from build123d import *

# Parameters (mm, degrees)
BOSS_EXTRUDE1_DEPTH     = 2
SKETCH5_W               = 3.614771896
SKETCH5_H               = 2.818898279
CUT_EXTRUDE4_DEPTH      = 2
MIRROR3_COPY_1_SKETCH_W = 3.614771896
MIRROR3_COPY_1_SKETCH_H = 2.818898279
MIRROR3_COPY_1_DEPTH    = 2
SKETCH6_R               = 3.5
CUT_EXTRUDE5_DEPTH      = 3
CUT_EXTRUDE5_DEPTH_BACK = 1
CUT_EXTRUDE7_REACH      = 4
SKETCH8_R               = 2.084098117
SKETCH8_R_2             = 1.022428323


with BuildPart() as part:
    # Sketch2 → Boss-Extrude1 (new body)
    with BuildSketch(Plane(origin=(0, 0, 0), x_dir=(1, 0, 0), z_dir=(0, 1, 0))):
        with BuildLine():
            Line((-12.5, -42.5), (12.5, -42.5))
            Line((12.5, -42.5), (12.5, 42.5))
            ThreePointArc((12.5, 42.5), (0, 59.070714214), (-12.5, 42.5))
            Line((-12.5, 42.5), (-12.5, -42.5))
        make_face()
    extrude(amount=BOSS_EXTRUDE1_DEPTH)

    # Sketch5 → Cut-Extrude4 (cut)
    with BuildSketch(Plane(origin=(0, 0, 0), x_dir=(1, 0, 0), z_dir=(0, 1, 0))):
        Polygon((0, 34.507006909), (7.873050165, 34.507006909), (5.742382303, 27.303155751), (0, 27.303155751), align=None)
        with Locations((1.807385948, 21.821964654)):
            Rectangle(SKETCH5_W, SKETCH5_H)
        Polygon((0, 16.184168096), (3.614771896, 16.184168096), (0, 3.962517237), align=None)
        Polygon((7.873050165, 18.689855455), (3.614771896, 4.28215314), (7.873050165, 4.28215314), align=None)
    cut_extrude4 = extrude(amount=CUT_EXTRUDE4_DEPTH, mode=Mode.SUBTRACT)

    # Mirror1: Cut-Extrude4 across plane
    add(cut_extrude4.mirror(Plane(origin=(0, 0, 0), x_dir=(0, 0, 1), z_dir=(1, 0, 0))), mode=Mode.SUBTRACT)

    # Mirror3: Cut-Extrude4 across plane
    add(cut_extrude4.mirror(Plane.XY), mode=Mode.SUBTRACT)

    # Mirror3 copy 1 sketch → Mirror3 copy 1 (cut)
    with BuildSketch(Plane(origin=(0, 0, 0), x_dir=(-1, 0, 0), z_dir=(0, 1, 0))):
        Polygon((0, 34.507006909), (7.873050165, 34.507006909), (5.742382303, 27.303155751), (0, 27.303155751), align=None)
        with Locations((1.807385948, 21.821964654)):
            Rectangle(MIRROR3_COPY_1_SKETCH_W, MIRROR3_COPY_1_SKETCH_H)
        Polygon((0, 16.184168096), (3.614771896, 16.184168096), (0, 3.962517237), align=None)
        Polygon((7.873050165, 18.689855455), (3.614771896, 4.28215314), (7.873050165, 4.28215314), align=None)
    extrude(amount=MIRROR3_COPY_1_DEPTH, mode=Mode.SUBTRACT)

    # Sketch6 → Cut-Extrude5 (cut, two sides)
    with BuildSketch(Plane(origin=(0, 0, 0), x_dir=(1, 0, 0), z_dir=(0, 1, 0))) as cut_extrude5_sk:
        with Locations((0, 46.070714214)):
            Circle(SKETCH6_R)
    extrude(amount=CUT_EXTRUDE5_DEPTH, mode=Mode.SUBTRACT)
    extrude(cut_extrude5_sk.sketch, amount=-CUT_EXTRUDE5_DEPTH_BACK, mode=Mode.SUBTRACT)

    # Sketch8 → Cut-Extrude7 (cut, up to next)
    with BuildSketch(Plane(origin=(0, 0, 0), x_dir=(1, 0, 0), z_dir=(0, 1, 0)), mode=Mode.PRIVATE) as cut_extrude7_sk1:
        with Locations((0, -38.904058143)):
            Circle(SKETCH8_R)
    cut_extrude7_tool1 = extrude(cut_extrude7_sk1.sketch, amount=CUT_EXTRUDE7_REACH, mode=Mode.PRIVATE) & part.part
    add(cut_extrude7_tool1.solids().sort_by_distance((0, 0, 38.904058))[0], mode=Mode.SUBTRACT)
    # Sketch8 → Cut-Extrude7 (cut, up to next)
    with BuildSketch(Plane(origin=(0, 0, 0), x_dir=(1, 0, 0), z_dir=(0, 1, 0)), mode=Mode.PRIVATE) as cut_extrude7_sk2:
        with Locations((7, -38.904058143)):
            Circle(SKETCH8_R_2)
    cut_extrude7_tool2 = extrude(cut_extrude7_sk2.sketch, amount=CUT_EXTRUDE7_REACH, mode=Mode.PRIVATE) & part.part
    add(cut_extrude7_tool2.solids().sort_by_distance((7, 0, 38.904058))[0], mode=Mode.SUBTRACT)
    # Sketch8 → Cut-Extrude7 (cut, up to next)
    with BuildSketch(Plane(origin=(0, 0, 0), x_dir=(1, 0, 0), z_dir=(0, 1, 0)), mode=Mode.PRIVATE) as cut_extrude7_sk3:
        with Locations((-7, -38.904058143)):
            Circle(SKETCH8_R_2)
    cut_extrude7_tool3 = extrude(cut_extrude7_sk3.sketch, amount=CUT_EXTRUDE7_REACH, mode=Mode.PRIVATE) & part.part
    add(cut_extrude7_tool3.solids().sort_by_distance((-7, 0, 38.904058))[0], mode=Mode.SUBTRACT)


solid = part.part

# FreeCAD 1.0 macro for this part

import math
import FreeCAD as App
import Part
import Sketcher

doc = App.newDocument("Part")
body = doc.addObject("PartDesign::Body", "Body")

# Sketch on XZ plane
sketch1 = body.newObject("Sketcher::SketchObject", "Sketch")
sketch1.AttachmentSupport = (doc.getObject("XZ_Plane"), [""])
sketch1.MapMode = "FlatFace"
sketch1.addGeometry(Part.LineSegment(App.Vector(-12, 42, 0), App.Vector(12, 42, 0)), False)
sketch1.addGeometry(Part.LineSegment(App.Vector(12, 42, 0), App.Vector(12, -42, 0)), False)
sketch1.addGeometry(Part.ArcOfCircle(Part.Circle(App.Vector(0, -46, 0), App.Vector(0, 0, 1), 13), math.radians(164), math.radians(376)), False)
sketch1.addGeometry(Part.LineSegment(App.Vector(-12, -42, 0), App.Vector(-12, 42, 0)), False)
sketch1.addConstraint(Sketcher.Constraint("Coincident", 0, 2, 1, 1))
sketch1.addConstraint(Sketcher.Constraint("Coincident", 1, 2, 2, 2))
sketch1.addConstraint(Sketcher.Constraint("Coincident", 2, 1, 3, 1))
sketch1.addConstraint(Sketcher.Constraint("Coincident", 3, 2, 0, 1))
sketch1.addConstraint(Sketcher.Constraint("Horizontal", 0))
sketch1.addConstraint(Sketcher.Constraint("Vertical", 1))
sketch1.addConstraint(Sketcher.Constraint("Vertical", 3))
sketch1.addConstraint(Sketcher.Constraint("Symmetric", 0, 2, 2, 1, -1, 1))
sketch1.addConstraint(Sketcher.Constraint("PointOnObject", 2, 3, -2))
sketch1.addConstraint(Sketcher.Constraint("Radius", 2, 13.0))
sketch1.addConstraint(Sketcher.Constraint("DistanceX", 0, 1, 0, 2, 25.0))
sketch1.addConstraint(Sketcher.Constraint("DistanceY", 1, 2, 1, 1, 85.0))
pad1 = body.newObject("PartDesign::Pad", "Pad")
pad1.Profile = sketch1
pad1.Length = 2
pad1.Reversed = True

# Sketch on XZ plane
sketch2 = body.newObject("Sketcher::SketchObject", "Sketch001")
sketch2.AttachmentSupport = (doc.getObject("XZ_Plane"), [""])
sketch2.MapMode = "FlatFace"
sketch2.addGeometry(Part.LineSegment(App.Vector(7.9, -34.5, 0), App.Vector(0, -34.5, 0)), False)
sketch2.addGeometry(Part.LineSegment(App.Vector(0, -34.5, 0), App.Vector(0, -27.3, 0)), False)
sketch2.addGeometry(Part.LineSegment(App.Vector(0, -27.3, 0), App.Vector(5.7, -27.3, 0)), False)
sketch2.addGeometry(Part.LineSegment(App.Vector(5.7, -27.3, 0), App.Vector(7.9, -34.5, 0)), False)
sketch2.addGeometry(Part.LineSegment(App.Vector(0, -23.2, 0), App.Vector(0, -20.4, 0)), False)
sketch2.addGeometry(Part.LineSegment(App.Vector(0, -20.4, 0), App.Vector(3.6, -20.4, 0)), False)
sketch2.addGeometry(Part.LineSegment(App.Vector(3.6, -20.4, 0), App.Vector(3.6, -23.2, 0)), False)
sketch2.addGeometry(Part.LineSegment(App.Vector(3.6, -23.2, 0), App.Vector(0, -23.2, 0)), False)
sketch2.addGeometry(Part.LineSegment(App.Vector(3.6, -16.2, 0), App.Vector(0, -16.2, 0)), False)
sketch2.addGeometry(Part.LineSegment(App.Vector(0, -16.2, 0), App.Vector(0, -4, 0)), False)
sketch2.addGeometry(Part.LineSegment(App.Vector(0, -4, 0), App.Vector(3.6, -16.2, 0)), False)
sketch2.addGeometry(Part.LineSegment(App.Vector(7.9, -18.7, 0), App.Vector(3.6, -4.3, 0)), False)
sketch2.addGeometry(Part.LineSegment(App.Vector(3.6, -4.3, 0), App.Vector(7.9, -4.3, 0)), False)
sketch2.addGeometry(Part.LineSegment(App.Vector(7.9, -4.3, 0), App.Vector(7.9, -18.7, 0)), False)
sketch2.addConstraint(Sketcher.Constraint("Coincident", 0, 2, 1, 1))
sketch2.addConstraint(Sketcher.Constraint("Coincident", 1, 2, 2, 1))
sketch2.addConstraint(Sketcher.Constraint("Coincident", 2, 2, 3, 1))
sketch2.addConstraint(Sketcher.Constraint("Coincident", 3, 2, 0, 1))
sketch2.addConstraint(Sketcher.Constraint("Coincident", 4, 2, 5, 1))
sketch2.addConstraint(Sketcher.Constraint("Coincident", 5, 2, 6, 1))
sketch2.addConstraint(Sketcher.Constraint("Coincident", 6, 2, 7, 1))
sketch2.addConstraint(Sketcher.Constraint("Coincident", 7, 2, 4, 1))
sketch2.addConstraint(Sketcher.Constraint("Coincident", 8, 2, 9, 1))
sketch2.addConstraint(Sketcher.Constraint("Coincident", 9, 2, 10, 1))
sketch2.addConstraint(Sketcher.Constraint("Coincident", 10, 2, 8, 1))
sketch2.addConstraint(Sketcher.Constraint("Coincident", 11, 2, 12, 1))
sketch2.addConstraint(Sketcher.Constraint("Coincident", 12, 2, 13, 1))
sketch2.addConstraint(Sketcher.Constraint("Coincident", 13, 2, 11, 1))
sketch2.addConstraint(Sketcher.Constraint("Horizontal", 0))
sketch2.addConstraint(Sketcher.Constraint("Vertical", 1))
sketch2.addConstraint(Sketcher.Constraint("Horizontal", 2))
sketch2.addConstraint(Sketcher.Constraint("Vertical", 4))
sketch2.addConstraint(Sketcher.Constraint("Horizontal", 5))
sketch2.addConstraint(Sketcher.Constraint("Vertical", 6))
sketch2.addConstraint(Sketcher.Constraint("Horizontal", 7))
sketch2.addConstraint(Sketcher.Constraint("Horizontal", 8))
sketch2.addConstraint(Sketcher.Constraint("Vertical", 9))
sketch2.addConstraint(Sketcher.Constraint("Horizontal", 12))
sketch2.addConstraint(Sketcher.Constraint("Vertical", 13))
sketch2.addConstraint(Sketcher.Constraint("PointOnObject", 0, 2, -2))
sketch2.addConstraint(Sketcher.Constraint("PointOnObject", 4, 2, -2))
sketch2.addConstraint(Sketcher.Constraint("PointOnObject", 8, 2, -2))
sketch2.addConstraint(Sketcher.Constraint("Parallel", 3, 10))
sketch2.addConstraint(Sketcher.Constraint("Vertical", 6, 2, 10, 2))
sketch2.addConstraint(Sketcher.Constraint("Vertical", 10, 2, 11, 2))
sketch2.addConstraint(Sketcher.Constraint("Vertical", 3, 2, 12, 2))
sketch2.addConstraint(Sketcher.Constraint("DistanceY", 4, 2, 9, 2, 16.449998))
sketch2.addConstraint(Sketcher.Constraint("DistanceY", 4, 1, 4, 2, 2.818898))
sketch2.addConstraint(Sketcher.Constraint("DistanceX", 0, 2, 0, 1, 7.87305))
sketch2.addConstraint(Sketcher.Constraint("DistanceX", 5, 1, 5, 2, 3.614772))
sketch2.addConstraint(Sketcher.Constraint("DistanceY", 1, 1, 1, 2, 7.203851))
sketch2.addConstraint(Sketcher.Constraint("DistanceY", 9, 1, 9, 2, 12.221651))
sketch2.addConstraint(Sketcher.Constraint("Distance", 11, 15.023808))
sketch2.addConstraint(Sketcher.Constraint("DistanceY", 8, 2, -1, 1, 16.184168))
sketch2.addConstraint(Sketcher.Constraint("DistanceY", 1, 2, 4, 2, 6.89064))
sketch2.addConstraint(Sketcher.Constraint("DistanceY", 5, 2, 13, 2, 1.72266))
pocket1 = body.newObject("PartDesign::Pocket", "Pocket")
pocket1.Profile = sketch2
pocket1.Length = 2
doc.recompute()

mirrored = body.newObject("PartDesign::Mirrored", "Mirrored")
mirrored.Originals = [pocket1]
mirrored.MirrorPlane = (doc.getObject("YZ_Plane"), [""])
body.Tip = mirrored
doc.recompute()

mirrored2 = body.newObject("PartDesign::Mirrored", "Mirrored001")
mirrored2.Originals = [pocket1]
mirrored2.MirrorPlane = (doc.getObject("XY_Plane"), [""])
body.Tip = mirrored2

# Sketch on XZ plane
sketch3 = body.newObject("Sketcher::SketchObject", "Sketch002")
sketch3.AttachmentSupport = (doc.getObject("XZ_Plane"), [""])
sketch3.MapMode = "FlatFace"
sketch3.addGeometry(Part.LineSegment(App.Vector(-7.9, 34.5, 0), App.Vector(0, 34.5, 0)), False)
sketch3.addGeometry(Part.LineSegment(App.Vector(0, 34.5, 0), App.Vector(0, 27.3, 0)), False)
sketch3.addGeometry(Part.LineSegment(App.Vector(0, 27.3, 0), App.Vector(-5.7, 27.3, 0)), False)
sketch3.addGeometry(Part.LineSegment(App.Vector(-5.7, 27.3, 0), App.Vector(-7.9, 34.5, 0)), False)
sketch3.addGeometry(Part.LineSegment(App.Vector(0, 23.2, 0), App.Vector(0, 20.4, 0)), False)
sketch3.addGeometry(Part.LineSegment(App.Vector(0, 20.4, 0), App.Vector(-3.6, 20.4, 0)), False)
sketch3.addGeometry(Part.LineSegment(App.Vector(-3.6, 20.4, 0), App.Vector(-3.6, 23.2, 0)), False)
sketch3.addGeometry(Part.LineSegment(App.Vector(-3.6, 23.2, 0), App.Vector(0, 23.2, 0)), False)
sketch3.addGeometry(Part.LineSegment(App.Vector(-3.6, 16.2, 0), App.Vector(0, 16.2, 0)), False)
sketch3.addGeometry(Part.LineSegment(App.Vector(0, 16.2, 0), App.Vector(0, 4, 0)), False)
sketch3.addGeometry(Part.LineSegment(App.Vector(0, 4, 0), App.Vector(-3.6, 16.2, 0)), False)
sketch3.addGeometry(Part.LineSegment(App.Vector(-7.9, 18.7, 0), App.Vector(-3.6, 4.3, 0)), False)
sketch3.addGeometry(Part.LineSegment(App.Vector(-3.6, 4.3, 0), App.Vector(-7.9, 4.3, 0)), False)
sketch3.addGeometry(Part.LineSegment(App.Vector(-7.9, 4.3, 0), App.Vector(-7.9, 18.7, 0)), False)
sketch3.addConstraint(Sketcher.Constraint("Coincident", 0, 2, 1, 1))
sketch3.addConstraint(Sketcher.Constraint("Coincident", 1, 2, 2, 1))
sketch3.addConstraint(Sketcher.Constraint("Coincident", 2, 2, 3, 1))
sketch3.addConstraint(Sketcher.Constraint("Coincident", 3, 2, 0, 1))
sketch3.addConstraint(Sketcher.Constraint("Coincident", 4, 2, 5, 1))
sketch3.addConstraint(Sketcher.Constraint("Coincident", 5, 2, 6, 1))
sketch3.addConstraint(Sketcher.Constraint("Coincident", 6, 2, 7, 1))
sketch3.addConstraint(Sketcher.Constraint("Coincident", 7, 2, 4, 1))
sketch3.addConstraint(Sketcher.Constraint("Coincident", 8, 2, 9, 1))
sketch3.addConstraint(Sketcher.Constraint("Coincident", 9, 2, 10, 1))
sketch3.addConstraint(Sketcher.Constraint("Coincident", 10, 2, 8, 1))
sketch3.addConstraint(Sketcher.Constraint("Coincident", 11, 2, 12, 1))
sketch3.addConstraint(Sketcher.Constraint("Coincident", 12, 2, 13, 1))
sketch3.addConstraint(Sketcher.Constraint("Coincident", 13, 2, 11, 1))
sketch3.addConstraint(Sketcher.Constraint("Horizontal", 0))
sketch3.addConstraint(Sketcher.Constraint("Vertical", 1))
sketch3.addConstraint(Sketcher.Constraint("Horizontal", 2))
sketch3.addConstraint(Sketcher.Constraint("Vertical", 4))
sketch3.addConstraint(Sketcher.Constraint("Horizontal", 5))
sketch3.addConstraint(Sketcher.Constraint("Vertical", 6))
sketch3.addConstraint(Sketcher.Constraint("Horizontal", 7))
sketch3.addConstraint(Sketcher.Constraint("Horizontal", 8))
sketch3.addConstraint(Sketcher.Constraint("Vertical", 9))
sketch3.addConstraint(Sketcher.Constraint("Horizontal", 12))
sketch3.addConstraint(Sketcher.Constraint("Vertical", 13))
sketch3.addConstraint(Sketcher.Constraint("PointOnObject", 0, 2, -2))
sketch3.addConstraint(Sketcher.Constraint("PointOnObject", 4, 2, -2))
sketch3.addConstraint(Sketcher.Constraint("PointOnObject", 8, 2, -2))
sketch3.addConstraint(Sketcher.Constraint("Parallel", 3, 10))
sketch3.addConstraint(Sketcher.Constraint("Vertical", 6, 2, 10, 2))
sketch3.addConstraint(Sketcher.Constraint("Vertical", 10, 2, 11, 2))
sketch3.addConstraint(Sketcher.Constraint("Vertical", 3, 2, 12, 2))
sketch3.addConstraint(Sketcher.Constraint("DistanceY", 9, 2, 4, 2, 16.449998))
sketch3.addConstraint(Sketcher.Constraint("DistanceY", 4, 2, 4, 1, 2.818898))
sketch3.addConstraint(Sketcher.Constraint("DistanceX", 0, 1, 0, 2, 7.87305))
sketch3.addConstraint(Sketcher.Constraint("DistanceX", 5, 2, 5, 1, 3.614772))
sketch3.addConstraint(Sketcher.Constraint("DistanceY", 1, 2, 1, 1, 7.203851))
sketch3.addConstraint(Sketcher.Constraint("DistanceY", 9, 2, 9, 1, 12.221651))
sketch3.addConstraint(Sketcher.Constraint("Distance", 11, 15.023808))
sketch3.addConstraint(Sketcher.Constraint("DistanceY", -1, 1, 8, 2, 16.184168))
sketch3.addConstraint(Sketcher.Constraint("DistanceY", 4, 2, 1, 2, 6.89064))
sketch3.addConstraint(Sketcher.Constraint("DistanceY", 13, 2, 5, 2, 1.72266))
pocket2 = body.newObject("PartDesign::Pocket", "Pocket001")
pocket2.Profile = sketch3
pocket2.Length = 2

# Sketch on XZ plane
sketch4 = body.newObject("Sketcher::SketchObject", "Sketch003")
sketch4.AttachmentSupport = (doc.getObject("XZ_Plane"), [""])
sketch4.MapMode = "FlatFace"
sketch4.addGeometry(Part.Circle(App.Vector(0, -46.1, 0), App.Vector(0, 0, 1), 3.5), False)
sketch4.addConstraint(Sketcher.Constraint("PointOnObject", 0, 3, -2))
sketch4.addConstraint(Sketcher.Constraint("Diameter", 0, 7.0))
sketch4.addConstraint(Sketcher.Constraint("DistanceY", 0, 3, -1, 1, 46.070714))
pocket3 = body.newObject("PartDesign::Pocket", "Pocket002")
pocket3.Profile = sketch4
pocket3.Type = "ThroughAll"
pocket3.Midplane = True

# Sketch on XZ plane
sketch5 = body.newObject("Sketcher::SketchObject", "Sketch004")
sketch5.AttachmentSupport = (doc.getObject("XZ_Plane"), [""])
sketch5.MapMode = "FlatFace"
sketch5.addGeometry(Part.Circle(App.Vector(0, 38.9, 0), App.Vector(0, 0, 1), 2.1), False)
sketch5.addConstraint(Sketcher.Constraint("PointOnObject", 0, 3, -2))
sketch5.addConstraint(Sketcher.Constraint("Diameter", 0, 4.168196))
sketch5.addConstraint(Sketcher.Constraint("DistanceY", -1, 1, 0, 3, 38.904058))
pocket4 = body.newObject("PartDesign::Pocket", "Pocket003")
pocket4.Profile = sketch5
pocket4.Type = "UpToFirst"

# Sketch on XZ plane
sketch6 = body.newObject("Sketcher::SketchObject", "Sketch005")
sketch6.AttachmentSupport = (doc.getObject("XZ_Plane"), [""])
sketch6.MapMode = "FlatFace"
sketch6.addGeometry(Part.Circle(App.Vector(7, 38.9, 0), App.Vector(0, 0, 1), 1), False)
sketch6.addConstraint(Sketcher.Constraint("DistanceX", -1, 1, 0, 3, 7.0))
sketch6.addConstraint(Sketcher.Constraint("Diameter", 0, 2.044857))
sketch6.addConstraint(Sketcher.Constraint("DistanceY", -1, 1, 0, 3, 38.904058))
pocket5 = body.newObject("PartDesign::Pocket", "Pocket004")
pocket5.Profile = sketch6
pocket5.Type = "UpToFirst"

# Sketch on XZ plane
sketch7 = body.newObject("Sketcher::SketchObject", "Sketch006")
sketch7.AttachmentSupport = (doc.getObject("XZ_Plane"), [""])
sketch7.MapMode = "FlatFace"
sketch7.addGeometry(Part.Circle(App.Vector(-7, 38.9, 0), App.Vector(0, 0, 1), 1), False)
sketch7.addConstraint(Sketcher.Constraint("DistanceX", 0, 3, -1, 1, 7.0))
sketch7.addConstraint(Sketcher.Constraint("Diameter", 0, 2.044857))
sketch7.addConstraint(Sketcher.Constraint("DistanceY", -1, 1, 0, 3, 38.904058))
pocket6 = body.newObject("PartDesign::Pocket", "Pocket005")
pocket6.Profile = sketch7
pocket6.Type = "UpToFirst"

doc.recompute()
